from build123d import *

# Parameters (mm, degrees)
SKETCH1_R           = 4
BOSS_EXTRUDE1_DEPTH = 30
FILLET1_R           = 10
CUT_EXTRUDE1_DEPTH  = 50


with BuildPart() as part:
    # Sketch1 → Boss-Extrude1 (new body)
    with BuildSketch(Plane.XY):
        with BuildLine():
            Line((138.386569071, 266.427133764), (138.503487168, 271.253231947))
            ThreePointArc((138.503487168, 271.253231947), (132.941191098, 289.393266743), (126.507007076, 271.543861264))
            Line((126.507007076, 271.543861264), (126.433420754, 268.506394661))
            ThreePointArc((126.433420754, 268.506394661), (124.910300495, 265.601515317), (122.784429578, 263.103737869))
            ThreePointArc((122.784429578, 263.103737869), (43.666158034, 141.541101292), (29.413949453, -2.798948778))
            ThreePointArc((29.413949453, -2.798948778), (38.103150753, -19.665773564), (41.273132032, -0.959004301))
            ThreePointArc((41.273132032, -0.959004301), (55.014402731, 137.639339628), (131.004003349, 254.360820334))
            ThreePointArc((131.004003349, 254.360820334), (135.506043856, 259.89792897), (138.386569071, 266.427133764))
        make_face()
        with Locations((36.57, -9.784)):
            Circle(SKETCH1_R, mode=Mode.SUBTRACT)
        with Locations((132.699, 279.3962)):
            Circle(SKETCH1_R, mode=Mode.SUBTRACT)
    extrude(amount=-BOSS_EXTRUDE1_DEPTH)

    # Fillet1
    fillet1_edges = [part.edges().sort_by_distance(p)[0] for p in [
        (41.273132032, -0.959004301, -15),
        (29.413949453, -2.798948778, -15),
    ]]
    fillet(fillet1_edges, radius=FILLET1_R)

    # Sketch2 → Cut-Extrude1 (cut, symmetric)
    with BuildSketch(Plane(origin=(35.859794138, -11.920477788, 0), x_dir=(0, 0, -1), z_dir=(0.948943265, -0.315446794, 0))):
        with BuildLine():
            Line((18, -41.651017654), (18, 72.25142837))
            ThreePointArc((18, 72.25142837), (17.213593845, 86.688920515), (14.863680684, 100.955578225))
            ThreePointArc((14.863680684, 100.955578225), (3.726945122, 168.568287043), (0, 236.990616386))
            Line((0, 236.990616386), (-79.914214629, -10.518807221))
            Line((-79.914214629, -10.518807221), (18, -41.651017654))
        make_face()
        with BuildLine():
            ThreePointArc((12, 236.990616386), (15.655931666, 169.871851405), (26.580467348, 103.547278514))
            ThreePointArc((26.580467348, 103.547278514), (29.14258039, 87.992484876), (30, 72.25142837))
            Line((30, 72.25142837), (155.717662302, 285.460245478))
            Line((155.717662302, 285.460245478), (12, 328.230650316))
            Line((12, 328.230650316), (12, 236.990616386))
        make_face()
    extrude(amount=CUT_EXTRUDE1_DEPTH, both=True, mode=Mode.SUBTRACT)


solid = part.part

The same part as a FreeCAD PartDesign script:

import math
import FreeCAD as App
import Part
import Sketcher
Q = App.Units.Quantity


def edges_at(feature, points):
    """Names of the edges that pass closest to the given points."""
    edges = feature.Shape.Edges
    near = lambda p: min(range(len(edges)), key=lambda i: edges[i].distToShape(Part.Vertex(*p))[0])
    return sorted({f"Edge{near(p) + 1}" for p in points})

doc = App.newDocument("Part")
body = doc.addObject("PartDesign::Body", "Body")

# Sketch on XY plane
sketch1 = body.newObject("Sketcher::SketchObject", "Sketch")
sketch1.AttachmentSupport = (doc.getObject("XY_Plane"), [""])
sketch1.MapMode = "FlatFace"
sketch1.addGeometry(Part.LineSegment(App.Vector(138.386569, 266.427134, 0), App.Vector(138.503487, 271.253232, 0)), False)
sketch1.addGeometry(Part.ArcOfCircle(Part.Circle(App.Vector(132.699, 279.3962, 0), App.Vector(0, 0, 1), 10), math.radians(-54.517891), math.radians(231.742314)), False)
sketch1.addGeometry(Part.LineSegment(App.Vector(126.507007, 271.543861, 0), App.Vector(126.433421, 268.506395, 0)), False)
sketch1.addGeometry(Part.ArcOfCircle(Part.Circle(App.Vector(112.653156, 273.880074, 0), App.Vector(0, 0, 1), 14.790948), math.radians(-46.767186), math.radians(-21.303533)), False)
sketch1.addGeometry(Part.ArcOfCircle(Part.Circle(App.Vector(332.383561, 40.159341, 0), App.Vector(0, 0, 1), 306), math.radians(133.232814), math.radians(188.070216)), False)
sketch1.addGeometry(Part.ArcOfCircle(Part.Circle(App.Vector(36.57, -9.784, 0), App.Vector(0, 0, 1), 10), math.radians(135.692808), math.radians(421.945371)), False)
sketch1.addGeometry(Part.ArcOfCircle(Part.Circle(App.Vector(332.383561, 40.159341, 0), App.Vector(0, 0, 1), 294), math.radians(133.232814), math.radians(188.039648)), False)
sketch1.addGeometry(Part.ArcOfCircle(Part.Circle(App.Vector(112.653156, 273.880074, 0), App.Vector(0, 0, 1), 26.790948), math.radians(-46.767186), math.radians(-16.152134)), False)
sketch1.addGeometry(Part.Circle(App.Vector(36.57, -9.784, 0), App.Vector(0, 0, 1), 4), False)
sketch1.addGeometry(Part.Circle(App.Vector(132.699, 279.3962, 0), App.Vector(0, 0, 1), 4), False)
sketch1.addConstraint(Sketcher.Constraint("Coincident", 0, 2, 1, 1))
sketch1.addConstraint(Sketcher.Constraint("Coincident", 1, 2, 2, 1))
sketch1.addConstraint(Sketcher.Constraint("Coincident", 2, 2, 3, 2))
sketch1.addConstraint(Sketcher.Constraint("Tangent", 3, 1, 4, 1))
sketch1.addConstraint(Sketcher.Constraint("Coincident", 4, 2, 5, 1))
sketch1.addConstraint(Sketcher.Constraint("Coincident", 5, 2, 6, 2))
sketch1.addConstraint(Sketcher.Constraint("Tangent", 6, 1, 7, 1))
sketch1.addConstraint(Sketcher.Constraint("Coincident", 7, 2, 0, 1))
sketch1.addConstraint(Sketcher.Constraint("Coincident", 6, 3, 4, 3))
sketch1.addConstraint(Sketcher.Constraint("Coincident", 7, 3, 3, 3))
sketch1.addConstraint(Sketcher.Constraint("Coincident", 8, 3, 5, 3))
sketch1.addConstraint(Sketcher.Constraint("Coincident", 9, 3, 1, 3))
sketch1.addConstraint(Sketcher.Constraint("Equal", 1, 5))
sketch1.addConstraint(Sketcher.Constraint("Equal", 8, 9))
sketch1.addConstraint(Sketcher.Constraint("Parallel", 0, 2))
sketch1.addConstraint(Sketcher.Constraint("Diameter", 8, Q("8 mm")))
sketch1.addConstraint(Sketcher.Constraint("Radius", 1, Q("10 mm")))
sketch1.addConstraint(Sketcher.Constraint("Radius", 4, Q("306 mm")))
sketch1.addConstraint(Sketcher.Constraint("Radius", 6, Q("294 mm")))
sketch1.addConstraint(Sketcher.Constraint("DistanceX", -1, 1, 5, 3, Q("36.57 mm")))
sketch1.addConstraint(Sketcher.Constraint("Radius", 3, Q("14.790948 mm")))
sketch1.addConstraint(Sketcher.Constraint("DistanceX", -1, 1, 1, 3, Q("132.699 mm")))
sketch1.addConstraint(Sketcher.Constraint("DistanceY", 5, 3, -1, 1, Q("9.784 mm")))
sketch1.addConstraint(Sketcher.Constraint("DistanceY", -1, 1, 1, 3, Q("279.3962 mm")))
sketch1.addConstraint(Sketcher.Constraint("DistanceY", 5, 2, 2, 2, Q("269.465399 mm")))
sketch1.addConstraint(Sketcher.Constraint("DistanceY", 7, 2, 0, 2, Q("4.826098 mm")))
sketch1.addConstraint(Sketcher.Constraint("DistanceX", -1, 1, 4, 3, Q("332.383561 mm")))
sketch1.addConstraint(Sketcher.Constraint("DistanceY", -1, 1, 4, 3, Q("40.159341 mm")))
sketch1.addConstraint(Sketcher.Constraint("DistanceY", -1, 1, 0, 2, Q("271.253232 mm")))
sketch1.addConstraint(Sketcher.Constraint("DistanceY", -1, 1, 1, 2, Q("271.543861 mm")))
pad1 = body.newObject("PartDesign::Pad", "Pad")
pad1.Profile = sketch1
pad1.Length = 30
pad1.Reversed = True
doc.recompute()

fillet = body.newObject("PartDesign::Fillet", "Fillet")
fillet.Base = (pad1, edges_at(pad1, [(41.273, -0.959, -15), (29.414, -2.799, -15)]))
fillet.Radius = 10

# Sketch on an angled plane
sketch2 = body.newObject("Sketcher::SketchObject", "Sketch001")
sketch2.Placement = App.Placement(App.Vector(35.859794, -11.920478, 0), App.Rotation(App.Vector(0, 0, -1), App.Vector(0.315446794, 0.948943265, 0), App.Vector(0.948943265, -0.315446794, 0), "ZXY"))
sketch2.addGeometry(Part.LineSegment(App.Vector(18, -41.651018, 0), App.Vector(18, 72.251428, 0)), False)
sketch2.addGeometry(Part.ArcOfCircle(Part.Circle(App.Vector(-114.920891, 72.251428, 0), App.Vector(0, 0, 1), 132.920891), math.radians(0), math.radians(12.471216)), False)
sketch2.addGeometry(Part.ArcOfCircle(Part.Circle(App.Vector(629.940222, 236.990616, 0), App.Vector(0, 0, 1), 629.940222), math.radians(-180), math.radians(-167.528784)), False)
sketch2.addGeometry(Part.LineSegment(App.Vector(0, 236.990616, 0), App.Vector(-79.914215, -10.518807, 0)), False)
sketch2.addGeometry(Part.LineSegment(App.Vector(-79.914215, -10.518807, 0), App.Vector(18, -41.651018, 0)), False)
sketch2.addGeometry(Part.ArcOfCircle(Part.Circle(App.Vector(629.940222, 236.990616, 0), App.Vector(0, 0, 1), 617.940222), math.radians(180), math.radians(192.471187)), False)
sketch2.addGeometry(Part.ArcOfCircle(Part.Circle(App.Vector(-114.920891, 72.251428, 0), App.Vector(0, 0, 1), 144.920891), math.radians(0), math.radians(12.471342)), False)
sketch2.addGeometry(Part.LineSegment(App.Vector(30, 72.251428, 0), App.Vector(155.717662, 285.460245, 0)), False)
sketch2.addGeometry(Part.LineSegment(App.Vector(155.717662, 285.460245, 0), App.Vector(12, 328.23065, 0)), False)
sketch2.addGeometry(Part.LineSegment(App.Vector(12, 328.23065, 0), App.Vector(12, 236.990616, 0)), False)
sketch2.addConstraint(Sketcher.Constraint("Tangent", 0, 2, 1, 1))
sketch2.addConstraint(Sketcher.Constraint("Tangent", 1, 2, 2, 2))
sketch2.addConstraint(Sketcher.Constraint("Coincident", 2, 1, 3, 1))
sketch2.addConstraint(Sketcher.Constraint("Coincident", 3, 2, 4, 1))
sketch2.addConstraint(Sketcher.Constraint("Coincident", 4, 2, 0, 1))
sketch2.addConstraint(Sketcher.Constraint("Coincident", 5, 2, 6, 2))
sketch2.addConstraint(Sketcher.Constraint("Coincident", 6, 1, 7, 1))
sketch2.addConstraint(Sketcher.Constraint("Coincident", 7, 2, 8, 1))
sketch2.addConstraint(Sketcher.Constraint("Coincident", 8, 2, 9, 1))
sketch2.addConstraint(Sketcher.Constraint("Tangent", 9, 2, 5, 1))
sketch2.addConstraint(Sketcher.Constraint("Vertical", 0))
sketch2.addConstraint(Sketcher.Constraint("Vertical", 9))
sketch2.addConstraint(Sketcher.Constraint("Coincident", 5, 3, 2, 3))
sketch2.addConstraint(Sketcher.Constraint("Coincident", 6, 3, 1, 3))
sketch2.addConstraint(Sketcher.Constraint("PointOnObject", 2, 1, -2))
sketch2.addConstraint(Sketcher.Constraint("Horizontal", 0, 2, 6, 1))
sketch2.addConstraint(Sketcher.Constraint("DistanceX", -1, 1, 0, 2, Q("18 mm")))
sketch2.addConstraint(Sketcher.Constraint("DistanceX", -1, 1, 6, 1, Q("30 mm")))
sketch2.addConstraint(Sketcher.Constraint("Radius", 1, Q("132.920891 mm")))
sketch2.addConstraint(Sketcher.Constraint("Radius", 2, Q("629.940222 mm")))
sketch2.addConstraint(Sketcher.Constraint("DistanceY", 1, 2, 5, 2, Q("2.5917 mm")))
sketch2.addConstraint(Sketcher.Constraint("Distance", 4, Q("102.744382 mm")))
sketch2.addConstraint(Sketcher.Constraint("DistanceY", 0, 1, 0, 2, Q("113.902446 mm")))
sketch2.addConstraint(Sketcher.Constraint("DistanceY", 9, 2, 9, 1, Q("91.240034 mm")))
sketch2.addConstraint(Sketcher.Constraint("DistanceY", -1, 1, 1, 3, Q("72.251428 mm")))
sketch2.addConstraint(Sketcher.Constraint("DistanceY", 4, 2, 3, 2, Q("31.13221 mm")))
sketch2.addConstraint(Sketcher.Constraint("DistanceX", 1, 2, 7, 2, Q("140.853982 mm")))
sketch2.addConstraint(Sketcher.Constraint("DistanceY", 9, 2, 7, 2, Q("48.469629 mm")))
sketch2.addConstraint(Sketcher.Constraint("Distance", 3, Q("260.090747 mm")))
pocket1 = body.newObject("PartDesign::Pocket", "Pocket")
pocket1.Profile = sketch2
pocket1.Length = 100
pocket1.Midplane = True

doc.recompute()
